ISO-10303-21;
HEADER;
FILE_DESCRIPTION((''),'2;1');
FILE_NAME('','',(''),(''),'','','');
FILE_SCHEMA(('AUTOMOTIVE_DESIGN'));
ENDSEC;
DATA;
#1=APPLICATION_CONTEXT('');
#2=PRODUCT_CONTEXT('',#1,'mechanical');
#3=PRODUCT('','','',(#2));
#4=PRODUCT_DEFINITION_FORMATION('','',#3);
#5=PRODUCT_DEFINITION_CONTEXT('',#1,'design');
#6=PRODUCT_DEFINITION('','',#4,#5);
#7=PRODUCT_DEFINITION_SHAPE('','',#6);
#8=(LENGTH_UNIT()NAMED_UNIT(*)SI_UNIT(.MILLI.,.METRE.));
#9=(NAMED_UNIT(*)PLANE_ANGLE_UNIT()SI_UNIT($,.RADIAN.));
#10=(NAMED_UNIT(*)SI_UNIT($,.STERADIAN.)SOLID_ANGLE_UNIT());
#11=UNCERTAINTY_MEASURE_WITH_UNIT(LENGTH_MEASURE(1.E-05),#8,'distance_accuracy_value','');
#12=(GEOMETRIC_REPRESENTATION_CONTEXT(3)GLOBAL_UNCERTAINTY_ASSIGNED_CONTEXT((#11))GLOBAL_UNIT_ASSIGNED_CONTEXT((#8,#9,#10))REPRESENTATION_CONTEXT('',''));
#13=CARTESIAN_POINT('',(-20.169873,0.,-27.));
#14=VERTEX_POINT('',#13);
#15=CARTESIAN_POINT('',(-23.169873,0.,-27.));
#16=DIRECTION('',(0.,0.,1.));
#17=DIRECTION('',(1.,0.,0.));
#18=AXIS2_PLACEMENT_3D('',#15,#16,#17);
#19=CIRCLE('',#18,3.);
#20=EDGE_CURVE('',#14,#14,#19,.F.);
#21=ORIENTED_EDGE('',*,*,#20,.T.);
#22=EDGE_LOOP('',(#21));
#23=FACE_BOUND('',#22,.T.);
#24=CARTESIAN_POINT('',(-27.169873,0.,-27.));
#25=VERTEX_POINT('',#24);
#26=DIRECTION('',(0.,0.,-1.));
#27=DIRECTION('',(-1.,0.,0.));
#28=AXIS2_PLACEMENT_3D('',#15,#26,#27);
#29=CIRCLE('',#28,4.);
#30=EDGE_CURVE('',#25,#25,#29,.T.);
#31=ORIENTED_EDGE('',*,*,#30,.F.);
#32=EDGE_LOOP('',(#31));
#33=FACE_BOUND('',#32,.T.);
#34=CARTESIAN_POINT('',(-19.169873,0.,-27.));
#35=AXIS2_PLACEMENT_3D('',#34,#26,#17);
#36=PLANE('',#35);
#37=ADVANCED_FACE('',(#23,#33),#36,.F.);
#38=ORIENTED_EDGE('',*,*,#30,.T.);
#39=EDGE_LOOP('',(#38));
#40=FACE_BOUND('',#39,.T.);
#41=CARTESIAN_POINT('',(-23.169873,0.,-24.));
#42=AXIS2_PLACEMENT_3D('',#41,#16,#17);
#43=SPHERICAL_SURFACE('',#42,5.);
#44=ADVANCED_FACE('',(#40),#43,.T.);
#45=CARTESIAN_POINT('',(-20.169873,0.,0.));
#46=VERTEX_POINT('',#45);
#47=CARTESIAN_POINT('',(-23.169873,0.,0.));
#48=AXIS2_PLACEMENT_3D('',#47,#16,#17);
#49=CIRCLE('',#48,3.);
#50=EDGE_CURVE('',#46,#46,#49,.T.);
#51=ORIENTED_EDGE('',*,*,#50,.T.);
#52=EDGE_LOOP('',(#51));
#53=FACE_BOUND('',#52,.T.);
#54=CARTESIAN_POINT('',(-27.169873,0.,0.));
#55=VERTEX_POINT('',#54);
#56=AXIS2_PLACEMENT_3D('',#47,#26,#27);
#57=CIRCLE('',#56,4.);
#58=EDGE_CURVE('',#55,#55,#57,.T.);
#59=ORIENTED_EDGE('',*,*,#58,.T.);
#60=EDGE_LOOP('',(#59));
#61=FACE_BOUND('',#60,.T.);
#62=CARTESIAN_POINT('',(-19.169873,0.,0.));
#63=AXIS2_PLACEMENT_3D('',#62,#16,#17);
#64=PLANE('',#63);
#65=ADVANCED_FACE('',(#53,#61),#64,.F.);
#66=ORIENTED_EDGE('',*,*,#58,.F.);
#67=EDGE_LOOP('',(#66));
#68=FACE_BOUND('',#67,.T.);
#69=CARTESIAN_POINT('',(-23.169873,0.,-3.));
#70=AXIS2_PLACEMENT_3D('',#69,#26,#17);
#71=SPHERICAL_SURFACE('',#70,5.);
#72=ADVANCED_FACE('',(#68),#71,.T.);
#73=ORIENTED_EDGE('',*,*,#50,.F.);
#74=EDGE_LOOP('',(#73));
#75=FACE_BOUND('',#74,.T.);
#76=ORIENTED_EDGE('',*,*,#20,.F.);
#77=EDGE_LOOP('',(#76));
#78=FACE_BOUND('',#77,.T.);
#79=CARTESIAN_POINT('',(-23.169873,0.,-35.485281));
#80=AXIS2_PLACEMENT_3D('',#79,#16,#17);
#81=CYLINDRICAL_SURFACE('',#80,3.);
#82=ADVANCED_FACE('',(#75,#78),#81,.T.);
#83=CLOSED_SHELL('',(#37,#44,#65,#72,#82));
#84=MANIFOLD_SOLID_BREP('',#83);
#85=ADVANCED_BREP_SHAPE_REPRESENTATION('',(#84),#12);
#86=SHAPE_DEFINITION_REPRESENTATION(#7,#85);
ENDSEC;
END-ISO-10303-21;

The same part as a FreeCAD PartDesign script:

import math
import FreeCAD as App
import Part
import Sketcher
from FreeCAD import Vector
Q = App.Units.Quantity

doc = App.newDocument("Part")
body = doc.addObject("PartDesign::Body", "Body")

sketch1 = body.newObject("Sketcher::SketchObject", "Sketch")
sketch1.AttachmentSupport = (doc.getObject("XY_Plane"), [""])
sketch1.MapMode = "FlatFace"
sketch1.addGeometry(Part.Circle(Vector(-23.2, 0, 0), Vector(0, 0, 1), 3), False)
sketch1.addConstraint([
    Sketcher.Constraint("PointOnObject", 0, 3, -1),
    Sketcher.Constraint("Diameter", 0, Q("6 mm")),
    Sketcher.Constraint("DistanceX", 0, 3, -1, 1, Q("23.169873 mm")),
])
pad1 = body.newObject("PartDesign::Pad", "Pad")
pad1.Profile = sketch1
pad1.Length = 27
pad1.Reversed = True

sketch2 = body.newObject("Sketcher::SketchObject", "Sketch001")
sketch2.AttachmentSupport = (doc.getObject("XZ_Plane"), [""])
sketch2.MapMode = "FlatFace"
sketch2.addGeometry([
    Part.LineSegment(Vector(-23.2, 0, 0), Vector(-23.2, 2, 0)),
    Part.ArcOfCircle(Part.Circle(Vector(-23.2, -3, 0), Vector(0, 0, 1), 5), math.radians(37), math.radians(90)),
    Part.LineSegment(Vector(-19.2, 0, 0), Vector(-23.2, 0, 0)),
], False)
sketch2.addGeometry(Part.LineSegment(Vector(-23.2, -3, 0), Vector(-23.2, 2, 0)), True)
sketch2.addConstraint([
    Sketcher.Constraint("Coincident", 0, 2, 1, 2),
    Sketcher.Constraint("Coincident", 1, 1, 2, 1),
    Sketcher.Constraint("Coincident", 2, 2, 0, 1),
    Sketcher.Constraint("Vertical", 0),
    Sketcher.Constraint("Horizontal", 2),
    Sketcher.Constraint("Vertical", 3),
    Sketcher.Constraint("Coincident", 3, 1, 1, 3),
    Sketcher.Constraint("Coincident", 3, 2, 0, 2),
    Sketcher.Constraint("PointOnObject", 1, 1, -1),
    Sketcher.Constraint("Radius", 1, Q("5 mm")),
    Sketcher.Constraint("DistanceX", 2, 2, 2, 1, Q("4 mm")),
    Sketcher.Constraint("DistanceX", 1, 3, -1, 1, Q("23.169873 mm")),
])
revolution = body.newObject("PartDesign::Revolution", "Revolution")
revolution.Profile = sketch2
revolution.ReferenceAxis = (sketch2, ["Axis0"])
revolution.Angle = 360
doc.recompute()

datumplane = body.newObject("PartDesign::Plane", "DatumPlane")
datumplane.AttachmentSupport = (doc.getObject("XY_Plane"), [""])
datumplane.MapMode = "FlatFace"
datumplane.AttachmentOffset = App.Placement(Vector(0, 0, -13.5), App.Rotation())
mirrored = body.newObject("PartDesign::Mirrored", "Mirrored")
mirrored.Originals = [revolution]
mirrored.MirrorPlane = (datumplane, [""])
body.Tip = mirrored

doc.recompute()
